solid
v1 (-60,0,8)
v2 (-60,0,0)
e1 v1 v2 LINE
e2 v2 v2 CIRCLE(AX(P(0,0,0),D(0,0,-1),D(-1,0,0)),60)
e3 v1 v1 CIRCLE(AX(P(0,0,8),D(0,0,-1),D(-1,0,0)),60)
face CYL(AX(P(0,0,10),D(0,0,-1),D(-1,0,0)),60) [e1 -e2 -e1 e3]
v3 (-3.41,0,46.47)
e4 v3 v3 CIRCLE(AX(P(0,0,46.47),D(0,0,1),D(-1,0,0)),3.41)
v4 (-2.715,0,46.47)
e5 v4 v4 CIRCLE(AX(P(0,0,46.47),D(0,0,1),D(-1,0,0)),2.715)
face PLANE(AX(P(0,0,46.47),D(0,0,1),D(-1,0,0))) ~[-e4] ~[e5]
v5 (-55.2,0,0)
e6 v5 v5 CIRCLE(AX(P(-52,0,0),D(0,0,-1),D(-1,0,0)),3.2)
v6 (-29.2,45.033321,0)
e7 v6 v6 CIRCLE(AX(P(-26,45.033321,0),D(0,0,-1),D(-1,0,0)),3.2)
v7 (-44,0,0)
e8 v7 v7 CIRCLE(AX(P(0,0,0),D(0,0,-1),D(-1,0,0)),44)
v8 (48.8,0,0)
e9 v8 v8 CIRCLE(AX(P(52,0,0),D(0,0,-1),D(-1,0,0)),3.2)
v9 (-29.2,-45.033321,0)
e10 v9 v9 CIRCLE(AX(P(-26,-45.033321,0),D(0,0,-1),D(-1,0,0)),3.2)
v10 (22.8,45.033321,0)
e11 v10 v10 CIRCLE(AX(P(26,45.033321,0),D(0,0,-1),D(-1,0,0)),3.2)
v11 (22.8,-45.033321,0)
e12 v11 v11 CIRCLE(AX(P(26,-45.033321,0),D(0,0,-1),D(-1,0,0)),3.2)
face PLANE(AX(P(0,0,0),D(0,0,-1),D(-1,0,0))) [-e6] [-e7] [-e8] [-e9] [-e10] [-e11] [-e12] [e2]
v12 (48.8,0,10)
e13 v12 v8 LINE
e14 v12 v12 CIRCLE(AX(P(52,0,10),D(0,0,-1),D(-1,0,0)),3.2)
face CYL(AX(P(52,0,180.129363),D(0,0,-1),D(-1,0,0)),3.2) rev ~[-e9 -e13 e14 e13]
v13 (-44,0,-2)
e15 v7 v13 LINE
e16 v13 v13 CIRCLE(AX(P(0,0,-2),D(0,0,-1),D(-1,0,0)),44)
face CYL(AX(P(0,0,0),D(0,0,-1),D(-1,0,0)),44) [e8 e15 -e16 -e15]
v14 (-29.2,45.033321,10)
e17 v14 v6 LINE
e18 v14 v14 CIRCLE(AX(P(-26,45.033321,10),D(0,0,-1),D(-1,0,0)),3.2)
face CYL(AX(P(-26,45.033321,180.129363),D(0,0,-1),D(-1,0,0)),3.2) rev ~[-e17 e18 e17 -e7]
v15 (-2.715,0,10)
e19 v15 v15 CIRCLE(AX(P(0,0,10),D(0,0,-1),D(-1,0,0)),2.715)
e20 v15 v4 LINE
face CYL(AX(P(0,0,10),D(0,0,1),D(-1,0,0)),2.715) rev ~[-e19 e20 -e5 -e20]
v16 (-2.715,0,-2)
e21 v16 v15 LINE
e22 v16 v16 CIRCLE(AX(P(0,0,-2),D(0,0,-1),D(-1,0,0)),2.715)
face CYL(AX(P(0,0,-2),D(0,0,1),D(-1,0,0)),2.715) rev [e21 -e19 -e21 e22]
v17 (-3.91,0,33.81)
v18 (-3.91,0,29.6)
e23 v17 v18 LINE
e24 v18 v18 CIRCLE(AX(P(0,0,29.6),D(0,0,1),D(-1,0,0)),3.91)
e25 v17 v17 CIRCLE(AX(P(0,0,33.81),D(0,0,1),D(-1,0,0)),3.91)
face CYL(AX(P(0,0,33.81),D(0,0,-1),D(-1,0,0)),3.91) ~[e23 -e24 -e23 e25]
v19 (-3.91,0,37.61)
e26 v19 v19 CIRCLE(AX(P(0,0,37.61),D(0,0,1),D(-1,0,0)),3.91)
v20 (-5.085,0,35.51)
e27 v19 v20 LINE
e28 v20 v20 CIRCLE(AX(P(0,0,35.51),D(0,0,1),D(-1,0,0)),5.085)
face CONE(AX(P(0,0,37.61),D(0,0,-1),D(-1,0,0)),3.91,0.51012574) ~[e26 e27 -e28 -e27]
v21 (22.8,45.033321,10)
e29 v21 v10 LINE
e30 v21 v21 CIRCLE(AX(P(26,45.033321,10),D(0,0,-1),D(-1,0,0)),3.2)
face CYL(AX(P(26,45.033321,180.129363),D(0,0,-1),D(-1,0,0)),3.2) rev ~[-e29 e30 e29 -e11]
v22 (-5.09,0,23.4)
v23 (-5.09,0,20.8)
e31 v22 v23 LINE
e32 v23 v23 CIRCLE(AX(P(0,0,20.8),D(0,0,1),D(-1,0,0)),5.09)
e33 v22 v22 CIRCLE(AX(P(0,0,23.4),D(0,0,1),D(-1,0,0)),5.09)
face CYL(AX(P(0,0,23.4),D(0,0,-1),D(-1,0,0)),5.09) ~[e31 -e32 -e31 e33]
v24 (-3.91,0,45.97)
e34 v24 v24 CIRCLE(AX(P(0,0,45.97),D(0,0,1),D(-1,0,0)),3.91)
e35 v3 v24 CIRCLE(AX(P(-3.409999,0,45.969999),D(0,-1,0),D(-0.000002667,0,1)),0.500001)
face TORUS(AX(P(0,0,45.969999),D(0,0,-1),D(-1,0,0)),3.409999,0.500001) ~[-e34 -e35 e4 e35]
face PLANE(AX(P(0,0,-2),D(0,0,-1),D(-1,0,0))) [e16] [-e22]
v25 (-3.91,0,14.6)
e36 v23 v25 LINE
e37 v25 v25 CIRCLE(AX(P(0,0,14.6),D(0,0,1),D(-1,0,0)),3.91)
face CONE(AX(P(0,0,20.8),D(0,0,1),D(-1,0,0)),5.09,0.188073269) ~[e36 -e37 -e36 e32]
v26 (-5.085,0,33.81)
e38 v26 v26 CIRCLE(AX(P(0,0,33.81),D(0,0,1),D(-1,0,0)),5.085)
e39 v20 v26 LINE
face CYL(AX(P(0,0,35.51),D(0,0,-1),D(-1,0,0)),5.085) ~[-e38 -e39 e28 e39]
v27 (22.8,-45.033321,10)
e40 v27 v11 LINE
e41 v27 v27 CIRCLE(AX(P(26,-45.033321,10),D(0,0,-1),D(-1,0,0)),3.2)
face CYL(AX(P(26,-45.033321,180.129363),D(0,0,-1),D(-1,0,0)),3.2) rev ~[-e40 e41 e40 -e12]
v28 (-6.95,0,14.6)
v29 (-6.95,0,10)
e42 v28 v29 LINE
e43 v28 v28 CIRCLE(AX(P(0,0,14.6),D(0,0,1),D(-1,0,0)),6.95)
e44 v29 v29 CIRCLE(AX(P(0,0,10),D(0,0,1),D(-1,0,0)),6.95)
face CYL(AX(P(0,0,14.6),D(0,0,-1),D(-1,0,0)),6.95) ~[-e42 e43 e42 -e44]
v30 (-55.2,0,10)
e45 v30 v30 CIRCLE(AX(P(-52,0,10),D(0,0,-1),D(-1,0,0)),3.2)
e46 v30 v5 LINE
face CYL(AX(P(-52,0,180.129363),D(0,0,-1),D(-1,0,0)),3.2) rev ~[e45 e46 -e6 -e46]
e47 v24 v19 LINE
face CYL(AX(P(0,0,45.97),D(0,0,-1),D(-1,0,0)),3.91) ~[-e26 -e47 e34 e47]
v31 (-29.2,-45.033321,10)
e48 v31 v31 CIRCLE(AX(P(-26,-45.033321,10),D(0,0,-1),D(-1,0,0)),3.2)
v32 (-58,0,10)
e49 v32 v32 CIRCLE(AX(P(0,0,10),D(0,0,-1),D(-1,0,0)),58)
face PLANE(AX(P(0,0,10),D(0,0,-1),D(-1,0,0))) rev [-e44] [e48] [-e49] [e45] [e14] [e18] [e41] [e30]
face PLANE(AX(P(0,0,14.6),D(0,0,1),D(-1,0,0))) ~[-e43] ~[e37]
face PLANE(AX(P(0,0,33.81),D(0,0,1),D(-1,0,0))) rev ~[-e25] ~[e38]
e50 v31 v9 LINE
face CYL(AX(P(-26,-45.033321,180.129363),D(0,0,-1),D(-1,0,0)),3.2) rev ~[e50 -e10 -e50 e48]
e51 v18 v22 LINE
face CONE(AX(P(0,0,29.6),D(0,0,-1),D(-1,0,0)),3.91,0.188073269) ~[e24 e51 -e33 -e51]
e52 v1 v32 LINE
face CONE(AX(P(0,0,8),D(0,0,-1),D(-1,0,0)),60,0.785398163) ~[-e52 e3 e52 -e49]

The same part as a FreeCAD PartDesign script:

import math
import FreeCAD as App
import Part
import Sketcher
from FreeCAD import Vector
Q = App.Units.Quantity


def edges_at(feature, points):
    """Names of the edges that pass closest to the given points."""
    edges = feature.Shape.Edges
    near = lambda p: min(range(len(edges)), key=lambda i: edges[i].distToShape(Part.Vertex(*p))[0])
    return sorted({f"Edge{near(p) + 1}" for p in points})

doc = App.newDocument("Part")
body = doc.addObject("PartDesign::Body", "Body")

# Sketch on XZ plane
sketch1 = body.newObject("Sketcher::SketchObject", "Sketch")
sketch1.AttachmentSupport = (doc.getObject("XZ_Plane"), [""])
sketch1.MapMode = "FlatFace"
sketch1.addGeometry([
    Part.LineSegment(Vector(-44, 0, 0), Vector(-44, -2, 0)),  # 0
    Part.LineSegment(Vector(-44, -2, 0), Vector(-2.7, -2, 0)),  # 1
    Part.LineSegment(Vector(-2.7, -2, 0), Vector(-2.7, 10, 0)),  # 2
    Part.LineSegment(Vector(-2.7, 10, 0), Vector(-60, 10, 0)),  # 3
    Part.LineSegment(Vector(-60, 10, 0), Vector(-60, 0, 0)),  # 4
    Part.LineSegment(Vector(-60, 0, 0), Vector(-44, 0, 0)),  # 5
], False)
sketch1.addConstraint([
    Sketcher.Constraint("Coincident", 0, 2, 1, 1),
    Sketcher.Constraint("Coincident", 1, 2, 2, 1),
    Sketcher.Constraint("Coincident", 2, 2, 3, 1),
    Sketcher.Constraint("Coincident", 3, 2, 4, 1),
    Sketcher.Constraint("Coincident", 4, 2, 5, 1),
    Sketcher.Constraint("Coincident", 5, 2, 0, 1),
    Sketcher.Constraint("Vertical", 0),
    Sketcher.Constraint("Horizontal", 1),
    Sketcher.Constraint("Vertical", 2),
    Sketcher.Constraint("Horizontal", 3),
    Sketcher.Constraint("Vertical", 4),
    Sketcher.Constraint("Horizontal", 5),
    Sketcher.Constraint("PointOnObject", 4, 2, -1),
    Sketcher.Constraint("DistanceX", 5, 1, 5, 2, Q("16 mm")),
    Sketcher.Constraint("DistanceY", 0, 2, 0, 1, Q("2 mm")),
    Sketcher.Constraint("DistanceY", 2, 1, 2, 2, Q("12 mm")),
    Sketcher.Constraint("DistanceX", 0, 2, -1, 1, Q("44 mm")),
    Sketcher.Constraint("DistanceX", 1, 1, 1, 2, Q("41.285 mm")),
])
revolution = body.newObject("PartDesign::Revolution", "Revolution")
revolution.Profile = sketch1
revolution.ReferenceAxis = (sketch1, ["V_Axis"])
revolution.Angle = 360

# Sketch on XY plane
sketch2 = body.newObject("Sketcher::SketchObject", "Sketch001")
sketch2.AttachmentSupport = (doc.getObject("XY_Plane"), [""])
sketch2.MapMode = "FlatFace"
sketch2.AttachmentOffset = App.Placement(Vector(0, 0, 10), App.Rotation())
sketch2.addGeometry([
    Part.Circle(Vector(-26, 45, 0), Vector(0, 0, 1), 3.2),  # 0
    Part.Circle(Vector(-52, 0, 0), Vector(0, 0, 1), 3.2),  # 1
    Part.Circle(Vector(-26, -45, 0), Vector(0, 0, 1), 3.2),  # 2
    Part.Circle(Vector(26, -45, 0), Vector(0, 0, 1), 3.2),  # 3
    Part.Circle(Vector(52, 0, 0), Vector(0, 0, 1), 3.2),  # 4
    Part.Circle(Vector(26, 45, 0), Vector(0, 0, 1), 3.2),  # 5
], False)
sketch2.addConstraint([
    Sketcher.Constraint("Equal", 0, 1),
    Sketcher.Constraint("Equal", 1, 2),
    Sketcher.Constraint("Equal", 2, 3),
    Sketcher.Constraint("Equal", 3, 4),
    Sketcher.Constraint("Equal", 4, 5),
    Sketcher.Constraint("Symmetric", 0, 3, 3, 3, -1, 1),
    Sketcher.Constraint("Symmetric", 1, 3, 4, 3, -1, 1),
    Sketcher.Constraint("Symmetric", 2, 3, 5, 3, -1, 1),
    Sketcher.Constraint("Symmetric", 2, 3, 3, 3, -2),
    Sketcher.Constraint("PointOnObject", 1, 3, -1),
    Sketcher.Constraint("Diameter", 0, Q("6.4 mm")),
    Sketcher.Constraint("DistanceX", 0, 3, -1, 1, Q("26 mm")),
    Sketcher.Constraint("DistanceX", 1, 3, -1, 1, Q("52 mm")),
    Sketcher.Constraint("DistanceY", -1, 1, 0, 3, Q("45.033321 mm")),
])
doc.recompute()
hole = body.newObject("PartDesign::Hole", "Hole")
hole.Profile = sketch2
hole.ThreadType = "None"
hole.Diameter = 6.4
hole.DepthType = "ThroughAll"
doc.recompute()

chamfer = body.newObject("PartDesign::Chamfer", "Chamfer")
chamfer.Base = (hole, edges_at(hole, [(60, 0, 10)]))
chamfer.Size = 2

# Sketch on XZ plane
sketch3 = body.newObject("Sketcher::SketchObject", "Sketch002")
sketch3.AttachmentSupport = (doc.getObject("XZ_Plane"), [""])
sketch3.MapMode = "FlatFace"
sketch3.addGeometry([
    Part.LineSegment(Vector(-3.9, 46, 0), Vector(-3.9, 37.6, 0)),  # 0
    Part.LineSegment(Vector(-3.9, 37.6, 0), Vector(-5.1, 35.5, 0)),  # 1
    Part.LineSegment(Vector(-5.1, 35.5, 0), Vector(-5.1, 33.8, 0)),  # 2
    Part.LineSegment(Vector(-5.1, 33.8, 0), Vector(-3.9, 33.8, 0)),  # 3
    Part.LineSegment(Vector(-3.9, 33.8, 0), Vector(-3.9, 29.6, 0)),  # 4
    Part.LineSegment(Vector(-3.9, 29.6, 0), Vector(-5.1, 23.4, 0)),  # 5
    Part.LineSegment(Vector(-5.1, 23.4, 0), Vector(-5.1, 20.8, 0)),  # 6
    Part.LineSegment(Vector(-5.1, 20.8, 0), Vector(-3.9, 14.6, 0)),  # 7
    Part.LineSegment(Vector(-3.9, 14.6, 0), Vector(-7, 14.6, 0)),  # 8
    Part.LineSegment(Vector(-7, 14.6, 0), Vector(-7, 10, 0)),  # 9
    Part.LineSegment(Vector(-7, 10, 0), Vector(-2.7, 10, 0)),  # 10
    Part.LineSegment(Vector(-2.7, 10, 0), Vector(-2.7, 46.5, 0)),  # 11
    Part.LineSegment(Vector(-2.7, 46.5, 0), Vector(-3.4, 46.5, 0)),  # 12
    Part.ArcOfCircle(Part.Circle(Vector(-3.4, 46, 0), Vector(0, 0, 1), 0.5), math.radians(90), math.radians(180)),  # 13
], False)
sketch3.addConstraint([
    Sketcher.Constraint("Coincident", 0, 2, 1, 1),
    Sketcher.Constraint("Coincident", 1, 2, 2, 1),
    Sketcher.Constraint("Coincident", 2, 2, 3, 1),
    Sketcher.Constraint("Coincident", 3, 2, 4, 1),
    Sketcher.Constraint("Coincident", 4, 2, 5, 1),
    Sketcher.Constraint("Coincident", 5, 2, 6, 1),
    Sketcher.Constraint("Coincident", 6, 2, 7, 1),
    Sketcher.Constraint("Coincident", 7, 2, 8, 1),
    Sketcher.Constraint("Coincident", 8, 2, 9, 1),
    Sketcher.Constraint("Coincident", 9, 2, 10, 1),
    Sketcher.Constraint("Coincident", 10, 2, 11, 1),
    Sketcher.Constraint("Coincident", 11, 2, 12, 1),
    Sketcher.Constraint("Coincident", 12, 2, 13, 1),
    Sketcher.Constraint("Coincident", 13, 2, 0, 1),
    Sketcher.Constraint("Vertical", 0),
    Sketcher.Constraint("Vertical", 2),
    Sketcher.Constraint("Horizontal", 3),
    Sketcher.Constraint("Vertical", 4),
    Sketcher.Constraint("Vertical", 6),
    Sketcher.Constraint("Horizontal", 8),
    Sketcher.Constraint("Vertical", 9),
    Sketcher.Constraint("Horizontal", 10),
    Sketcher.Constraint("Vertical", 11),
    Sketcher.Constraint("Horizontal", 12),
    Sketcher.Constraint("Vertical", 0, 2, 3, 2),
    Sketcher.Constraint("Vertical", 4, 2, 7, 2),
    Sketcher.Constraint("Vertical", 13, 3, 12, 2),
    Sketcher.Constraint("Equal", 5, 7),
    Sketcher.Constraint("Radius", 13, Q("0.500001 mm")),
    Sketcher.Constraint("DistanceY", 2, 2, 2, 1, Q("1.7 mm")),
    Sketcher.Constraint("DistanceY", 6, 2, 6, 1, Q("2.6 mm")),
    Sketcher.Constraint("DistanceY", 9, 2, 9, 1, Q("4.6 mm")),
    Sketcher.Constraint("DistanceY", -1, 1, 9, 2, Q("10 mm")),
    Sketcher.Constraint("DistanceY", 7, 2, 4, 2, Q("15 mm")),
    Sketcher.Constraint("DistanceX", 8, 2, 8, 1, Q("3.04 mm")),
    Sketcher.Constraint("DistanceY", 0, 2, 0, 1, Q("8.36 mm")),
    Sketcher.Constraint("DistanceY", 4, 2, 4, 1, Q("4.21 mm")),
    Sketcher.Constraint("DistanceY", 11, 1, 11, 2, Q("36.47 mm")),
    Sketcher.Constraint("DistanceY", 1, 2, 0, 2, Q("2.1 mm")),
    Sketcher.Constraint("DistanceX", 3, 1, 3, 2, Q("1.175 mm")),
    Sketcher.Constraint("DistanceX", 10, 1, 10, 2, Q("4.235 mm")),
    Sketcher.Constraint("DistanceX", 13, 3, -1, 1, Q("3.409999 mm")),
    Sketcher.Constraint("DistanceX", 5, 2, -1, 1, Q("5.09 mm")),
])
revolution2 = body.newObject("PartDesign::Revolution", "Revolution001")
revolution2.Profile = sketch3
revolution2.ReferenceAxis = (sketch3, ["V_Axis"])
revolution2.Angle = 360

doc.recompute()
